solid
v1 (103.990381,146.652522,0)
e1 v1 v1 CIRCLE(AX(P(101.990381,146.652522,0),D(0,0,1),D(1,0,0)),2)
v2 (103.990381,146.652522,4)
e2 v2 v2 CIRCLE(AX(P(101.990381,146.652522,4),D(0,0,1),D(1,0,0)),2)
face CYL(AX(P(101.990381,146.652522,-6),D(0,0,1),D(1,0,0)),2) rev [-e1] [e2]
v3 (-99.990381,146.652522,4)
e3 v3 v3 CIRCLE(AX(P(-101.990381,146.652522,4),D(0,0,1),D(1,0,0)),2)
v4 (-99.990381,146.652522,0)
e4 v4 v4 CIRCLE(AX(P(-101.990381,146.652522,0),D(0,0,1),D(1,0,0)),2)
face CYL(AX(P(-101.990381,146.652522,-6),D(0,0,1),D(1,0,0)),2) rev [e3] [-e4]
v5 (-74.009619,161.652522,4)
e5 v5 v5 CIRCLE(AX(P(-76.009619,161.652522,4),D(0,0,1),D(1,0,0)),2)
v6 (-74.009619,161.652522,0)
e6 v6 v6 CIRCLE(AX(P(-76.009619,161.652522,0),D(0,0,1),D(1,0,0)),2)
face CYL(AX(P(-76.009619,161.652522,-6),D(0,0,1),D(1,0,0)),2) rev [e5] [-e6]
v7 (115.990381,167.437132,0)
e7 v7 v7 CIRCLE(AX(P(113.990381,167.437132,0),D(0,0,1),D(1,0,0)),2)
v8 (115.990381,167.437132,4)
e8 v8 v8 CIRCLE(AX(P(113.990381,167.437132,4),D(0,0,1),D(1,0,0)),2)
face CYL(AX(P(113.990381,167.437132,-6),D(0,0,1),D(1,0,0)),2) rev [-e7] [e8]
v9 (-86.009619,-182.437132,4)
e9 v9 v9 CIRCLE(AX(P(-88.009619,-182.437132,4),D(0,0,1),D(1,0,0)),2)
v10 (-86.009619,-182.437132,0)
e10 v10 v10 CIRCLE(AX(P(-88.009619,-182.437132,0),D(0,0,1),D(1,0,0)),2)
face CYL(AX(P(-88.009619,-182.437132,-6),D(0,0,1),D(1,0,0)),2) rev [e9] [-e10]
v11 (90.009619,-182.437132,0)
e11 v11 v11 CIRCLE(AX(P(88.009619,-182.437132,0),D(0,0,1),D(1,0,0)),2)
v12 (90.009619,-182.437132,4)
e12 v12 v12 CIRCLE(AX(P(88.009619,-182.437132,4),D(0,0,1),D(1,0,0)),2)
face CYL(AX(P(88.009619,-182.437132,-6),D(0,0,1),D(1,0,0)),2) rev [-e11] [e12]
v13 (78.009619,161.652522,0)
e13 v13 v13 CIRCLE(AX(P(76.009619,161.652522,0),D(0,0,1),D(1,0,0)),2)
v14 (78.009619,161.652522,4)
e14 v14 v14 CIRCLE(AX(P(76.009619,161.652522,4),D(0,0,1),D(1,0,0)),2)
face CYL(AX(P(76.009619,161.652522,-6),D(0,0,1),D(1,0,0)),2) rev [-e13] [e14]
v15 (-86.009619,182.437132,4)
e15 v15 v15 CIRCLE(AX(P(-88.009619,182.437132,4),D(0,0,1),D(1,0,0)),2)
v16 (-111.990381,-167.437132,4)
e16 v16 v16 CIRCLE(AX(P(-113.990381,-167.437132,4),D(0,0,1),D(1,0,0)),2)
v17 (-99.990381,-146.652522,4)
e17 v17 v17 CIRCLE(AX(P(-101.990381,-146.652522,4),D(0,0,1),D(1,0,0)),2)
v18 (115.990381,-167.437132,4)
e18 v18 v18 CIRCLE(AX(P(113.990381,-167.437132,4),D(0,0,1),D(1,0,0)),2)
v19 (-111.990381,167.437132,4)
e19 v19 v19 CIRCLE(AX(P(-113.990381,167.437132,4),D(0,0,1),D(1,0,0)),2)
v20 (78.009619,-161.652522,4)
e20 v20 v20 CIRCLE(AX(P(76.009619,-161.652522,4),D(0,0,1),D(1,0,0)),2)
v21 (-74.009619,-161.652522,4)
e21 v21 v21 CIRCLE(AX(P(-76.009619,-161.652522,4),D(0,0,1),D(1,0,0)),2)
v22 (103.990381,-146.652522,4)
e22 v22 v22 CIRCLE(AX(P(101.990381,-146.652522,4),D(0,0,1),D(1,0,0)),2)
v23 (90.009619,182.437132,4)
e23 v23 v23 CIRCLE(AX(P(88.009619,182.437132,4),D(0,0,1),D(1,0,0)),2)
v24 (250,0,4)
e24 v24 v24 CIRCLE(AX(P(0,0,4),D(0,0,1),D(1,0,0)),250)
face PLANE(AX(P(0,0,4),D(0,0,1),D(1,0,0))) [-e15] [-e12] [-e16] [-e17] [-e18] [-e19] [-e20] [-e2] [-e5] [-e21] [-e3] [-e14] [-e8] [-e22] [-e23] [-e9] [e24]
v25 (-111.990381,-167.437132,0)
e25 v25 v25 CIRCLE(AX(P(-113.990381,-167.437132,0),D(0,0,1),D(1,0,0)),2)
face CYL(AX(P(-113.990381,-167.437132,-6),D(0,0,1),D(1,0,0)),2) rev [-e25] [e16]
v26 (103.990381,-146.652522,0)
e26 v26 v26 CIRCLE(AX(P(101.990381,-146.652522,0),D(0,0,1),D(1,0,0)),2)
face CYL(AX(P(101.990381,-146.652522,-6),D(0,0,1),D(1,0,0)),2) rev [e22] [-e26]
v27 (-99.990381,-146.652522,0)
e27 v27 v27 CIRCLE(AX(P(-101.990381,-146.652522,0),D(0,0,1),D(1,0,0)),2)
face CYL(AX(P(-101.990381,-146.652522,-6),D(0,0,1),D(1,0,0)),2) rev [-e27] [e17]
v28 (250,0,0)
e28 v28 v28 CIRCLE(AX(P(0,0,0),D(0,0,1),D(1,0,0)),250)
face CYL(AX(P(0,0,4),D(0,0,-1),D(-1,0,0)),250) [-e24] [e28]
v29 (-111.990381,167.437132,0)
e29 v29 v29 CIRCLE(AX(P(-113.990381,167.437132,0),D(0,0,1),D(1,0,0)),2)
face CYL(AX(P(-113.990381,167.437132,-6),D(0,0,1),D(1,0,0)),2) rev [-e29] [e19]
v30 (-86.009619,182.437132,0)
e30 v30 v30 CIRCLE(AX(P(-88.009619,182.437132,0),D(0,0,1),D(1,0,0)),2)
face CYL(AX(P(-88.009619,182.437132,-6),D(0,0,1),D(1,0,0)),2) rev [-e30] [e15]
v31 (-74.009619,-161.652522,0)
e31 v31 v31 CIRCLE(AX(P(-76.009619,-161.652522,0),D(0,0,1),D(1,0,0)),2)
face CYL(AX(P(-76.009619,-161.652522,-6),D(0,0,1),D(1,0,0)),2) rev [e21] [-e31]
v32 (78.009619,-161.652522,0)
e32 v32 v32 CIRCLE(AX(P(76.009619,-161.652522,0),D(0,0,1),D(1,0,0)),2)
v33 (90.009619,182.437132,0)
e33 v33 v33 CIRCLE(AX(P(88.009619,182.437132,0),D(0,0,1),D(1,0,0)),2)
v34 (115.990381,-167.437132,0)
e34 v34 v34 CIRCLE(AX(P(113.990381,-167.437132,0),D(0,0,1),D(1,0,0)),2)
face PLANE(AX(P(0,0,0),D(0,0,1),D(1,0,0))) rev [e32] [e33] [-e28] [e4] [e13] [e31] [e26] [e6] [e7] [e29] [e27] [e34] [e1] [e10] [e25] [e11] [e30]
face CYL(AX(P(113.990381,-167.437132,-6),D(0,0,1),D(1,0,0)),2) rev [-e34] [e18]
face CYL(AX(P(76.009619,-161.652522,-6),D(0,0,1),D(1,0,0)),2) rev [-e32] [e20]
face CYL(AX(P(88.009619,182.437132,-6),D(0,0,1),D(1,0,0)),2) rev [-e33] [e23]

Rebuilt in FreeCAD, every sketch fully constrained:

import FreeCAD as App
import Part
import Sketcher

V = App.Vector

doc = App.newDocument("Part")
params = doc.addObject("Spreadsheet::Sheet", "Params")
for row, (alias, value) in enumerate([
    ("sketch1_diameter", "500 mm"),
    ("pad1_length", "4 mm"),
    ("sketch2_diameter", "4 mm"),
    ("pocket1_length", "10 mm"),
], start=1):
    params.set(f"A{row}", alias)
    params.set(f"B{row}", "=" + value)
    params.setAlias(f"B{row}", alias)

body = doc.addObject("PartDesign::Body", "Body")

sketch1 = body.newObject("Sketcher::SketchObject", "Sketch")
sketch1.AttachmentSupport = (doc.getObject("XY_Plane"), [""])
sketch1.MapMode = "FlatFace"
sketch1.addGeometry(Part.Circle(V(0, 0, 0), V(0, 0, 1), 250), False)
sketch1.addConstraint([
    Sketcher.Constraint("Coincident", 0, 3, -1, 1),
    Sketcher.Constraint("Diameter", 0, 500.0),
])
sketch1.setExpression("Constraints[1]", "Params.sketch1_diameter")
pad1 = body.newObject("PartDesign::Pad", "Pad")
pad1.Profile = sketch1
pad1.setExpression("Length", "Params.pad1_length")

sketch2 = body.newObject("Sketcher::SketchObject", "Sketch001")
sketch2.AttachmentSupport = (doc.getObject("XY_Plane"), [""])
sketch2.MapMode = "FlatFace"
sketch2.AttachmentOffset = App.Placement(V(0, 0, 4), App.Rotation())
sketch2.addGeometry([
    Part.Circle(V(-102, 146.7, 0), V(0, 0, 1), 2),
    Part.Circle(V(-76, 161.7, 0), V(0, 0, 1), 2),
    Part.Circle(V(-114, 167.4, 0), V(0, 0, 1), 2),
    Part.Circle(V(-88, 182.4, 0), V(0, 0, 1), 2),
    Part.Circle(V(76, 161.7, 0), V(0, 0, 1), 2),
    Part.Circle(V(102, 146.7, 0), V(0, 0, 1), 2),
    Part.Circle(V(88, 182.4, 0), V(0, 0, 1), 2),
    Part.Circle(V(114, 167.4, 0), V(0, 0, 1), 2),
    Part.Circle(V(102, -146.7, 0), V(0, 0, 1), 2),
    Part.Circle(V(76, -161.7, 0), V(0, 0, 1), 2),
    Part.Circle(V(114, -167.4, 0), V(0, 0, 1), 2),
    Part.Circle(V(88, -182.4, 0), V(0, 0, 1), 2),
    Part.Circle(V(-76, -161.7, 0), V(0, 0, 1), 2),
    Part.Circle(V(-102, -146.7, 0), V(0, 0, 1), 2),
    Part.Circle(V(-88, -182.4, 0), V(0, 0, 1), 2),
    Part.Circle(V(-114, -167.4, 0), V(0, 0, 1), 2),
], False)
sketch2.addConstraint([
    Sketcher.Constraint("Equal", 0, 1),
    Sketcher.Constraint("Equal", 1, 2),
    Sketcher.Constraint("Equal", 2, 3),
    Sketcher.Constraint("Equal", 3, 4),
    Sketcher.Constraint("Equal", 4, 5),
    Sketcher.Constraint("Equal", 5, 6),
    Sketcher.Constraint("Equal", 6, 7),
    Sketcher.Constraint("Equal", 7, 8),
    Sketcher.Constraint("Equal", 8, 9),
    Sketcher.Constraint("Equal", 9, 10),
    Sketcher.Constraint("Equal", 10, 11),
    Sketcher.Constraint("Equal", 11, 12),
    Sketcher.Constraint("Equal", 12, 13),
    Sketcher.Constraint("Equal", 13, 14),
    Sketcher.Constraint("Equal", 14, 15),
    Sketcher.Constraint("Symmetric", 0, 3, 8, 3, -1, 1),
    Sketcher.Constraint("Symmetric", 1, 3, 9, 3, -1, 1),
    Sketcher.Constraint("Symmetric", 2, 3, 10, 3, -1, 1),
    Sketcher.Constraint("Symmetric", 3, 3, 11, 3, -1, 1),
    Sketcher.Constraint("Symmetric", 4, 3, 12, 3, -1, 1),
    Sketcher.Constraint("Symmetric", 5, 3, 13, 3, -1, 1),
    Sketcher.Constraint("Symmetric", 6, 3, 14, 3, -1, 1),
    Sketcher.Constraint("Symmetric", 7, 3, 15, 3, -1, 1),
    Sketcher.Constraint("Symmetric", 1, 3, 4, 3, -2),
    Sketcher.Constraint("Symmetric", 0, 3, 5, 3, -2),
    Sketcher.Constraint("Symmetric", 3, 3, 6, 3, -2),
    Sketcher.Constraint("Symmetric", 2, 3, 7, 3, -2),
    Sketcher.Constraint("Diameter", 0, 4.0),
    Sketcher.Constraint("DistanceY", 0, 3, 1, 3, 15.0),
    Sketcher.Constraint("DistanceX", 2, 3, 0, 3, 12.0),
    Sketcher.Constraint("DistanceX", 3, 3, 1, 3, 12.0),
    Sketcher.Constraint("DistanceY", 2, 3, 3, 3, 15.0),
    Sketcher.Constraint("DistanceX", 0, 3, 4, 3, 178.0),
    Sketcher.Constraint("DistanceX", 0, 3, -1, 1, 101.990381),
    Sketcher.Constraint("DistanceY", -1, 1, 0, 3, 146.652522),
    Sketcher.Constraint("DistanceY", -1, 1, 2, 3, 167.437132),
])
sketch2.setExpression("Constraints[27]", "Params.sketch2_diameter")
pocket1 = body.newObject("PartDesign::Pocket", "Pocket")
pocket1.Profile = sketch2
pocket1.setExpression("Length", "Params.pocket1_length")

doc.recompute()
